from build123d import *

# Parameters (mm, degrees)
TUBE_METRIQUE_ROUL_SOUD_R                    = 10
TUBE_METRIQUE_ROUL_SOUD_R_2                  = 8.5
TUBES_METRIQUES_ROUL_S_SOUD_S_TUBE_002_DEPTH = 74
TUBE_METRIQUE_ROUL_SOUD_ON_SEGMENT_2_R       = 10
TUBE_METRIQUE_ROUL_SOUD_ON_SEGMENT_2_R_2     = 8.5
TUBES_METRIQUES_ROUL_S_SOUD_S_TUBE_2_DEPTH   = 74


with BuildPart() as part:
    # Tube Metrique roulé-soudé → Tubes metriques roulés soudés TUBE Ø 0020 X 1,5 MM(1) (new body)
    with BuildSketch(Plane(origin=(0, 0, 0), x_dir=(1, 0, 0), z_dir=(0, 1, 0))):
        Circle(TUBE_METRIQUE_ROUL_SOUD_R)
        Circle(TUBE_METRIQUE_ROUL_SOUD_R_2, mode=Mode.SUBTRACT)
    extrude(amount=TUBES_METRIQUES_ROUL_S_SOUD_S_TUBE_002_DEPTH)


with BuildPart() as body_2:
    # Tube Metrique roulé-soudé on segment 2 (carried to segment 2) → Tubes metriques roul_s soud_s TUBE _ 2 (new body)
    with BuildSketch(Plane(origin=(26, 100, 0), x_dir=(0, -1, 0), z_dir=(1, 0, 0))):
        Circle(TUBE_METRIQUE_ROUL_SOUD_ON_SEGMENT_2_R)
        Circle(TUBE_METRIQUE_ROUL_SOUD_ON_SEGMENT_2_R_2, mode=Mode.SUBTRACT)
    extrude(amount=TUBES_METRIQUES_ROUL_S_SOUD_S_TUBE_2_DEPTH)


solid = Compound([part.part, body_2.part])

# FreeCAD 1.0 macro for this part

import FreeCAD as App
import Part
import Sketcher
from FreeCAD import Vector
Q = App.Units.Quantity

doc = App.newDocument("Part")
body = doc.addObject("PartDesign::Body", "Body")

# Sketch on XZ plane
sketch1 = body.newObject("Sketcher::SketchObject", "Sketch")
sketch1.AttachmentSupport = (doc.getObject("XZ_Plane"), [""])
sketch1.MapMode = "FlatFace"
sketch1.addGeometry([
    Part.Circle(Vector(0, 0, 0), Vector(0, 0, 1), 10),
    Part.Circle(Vector(0, 0, 0), Vector(0, 0, 1), 8.5),
], False)
sketch1.addConstraint([
    Sketcher.Constraint("Coincident", 0, 3, -1, 1),
    Sketcher.Constraint("Coincident", 1, 3, -1, 1),
    Sketcher.Constraint("Diameter", 0, Q("20 mm")),
    Sketcher.Constraint("Diameter", 1, Q("17 mm")),
])
pad1 = body.newObject("PartDesign::Pad", "Pad")
pad1.Profile = sketch1
pad1.Length = 74
pad1.Reversed = True
body2 = doc.addObject("PartDesign::Body", "Body001")

# Sketch on YZ plane
sketch2 = body2.newObject("Sketcher::SketchObject", "Sketch001")
sketch2.AttachmentSupport = (doc.getObject("YZ_Plane001"), [""])
sketch2.MapMode = "FlatFace"
sketch2.AttachmentOffset = App.Placement(Vector(0, 0, 26), App.Rotation())
sketch2.addGeometry([
    Part.Circle(Vector(100, 0, 0), Vector(0, 0, 1), 10),
    Part.Circle(Vector(100, 0, 0), Vector(0, 0, 1), 8.5),
], False)
sketch2.addConstraint([
    Sketcher.Constraint("Coincident", 1, 3, 0, 3),
    Sketcher.Constraint("PointOnObject", 0, 3, -1),
    Sketcher.Constraint("Diameter", 0, Q("20 mm")),
    Sketcher.Constraint("Diameter", 1, Q("17 mm")),
    Sketcher.Constraint("DistanceX", -1, 1, 0, 3, Q("100 mm")),
])
pad2 = body2.newObject("PartDesign::Pad", "Pad001")
pad2.Profile = sketch2
pad2.Length = 74

doc.recompute()
